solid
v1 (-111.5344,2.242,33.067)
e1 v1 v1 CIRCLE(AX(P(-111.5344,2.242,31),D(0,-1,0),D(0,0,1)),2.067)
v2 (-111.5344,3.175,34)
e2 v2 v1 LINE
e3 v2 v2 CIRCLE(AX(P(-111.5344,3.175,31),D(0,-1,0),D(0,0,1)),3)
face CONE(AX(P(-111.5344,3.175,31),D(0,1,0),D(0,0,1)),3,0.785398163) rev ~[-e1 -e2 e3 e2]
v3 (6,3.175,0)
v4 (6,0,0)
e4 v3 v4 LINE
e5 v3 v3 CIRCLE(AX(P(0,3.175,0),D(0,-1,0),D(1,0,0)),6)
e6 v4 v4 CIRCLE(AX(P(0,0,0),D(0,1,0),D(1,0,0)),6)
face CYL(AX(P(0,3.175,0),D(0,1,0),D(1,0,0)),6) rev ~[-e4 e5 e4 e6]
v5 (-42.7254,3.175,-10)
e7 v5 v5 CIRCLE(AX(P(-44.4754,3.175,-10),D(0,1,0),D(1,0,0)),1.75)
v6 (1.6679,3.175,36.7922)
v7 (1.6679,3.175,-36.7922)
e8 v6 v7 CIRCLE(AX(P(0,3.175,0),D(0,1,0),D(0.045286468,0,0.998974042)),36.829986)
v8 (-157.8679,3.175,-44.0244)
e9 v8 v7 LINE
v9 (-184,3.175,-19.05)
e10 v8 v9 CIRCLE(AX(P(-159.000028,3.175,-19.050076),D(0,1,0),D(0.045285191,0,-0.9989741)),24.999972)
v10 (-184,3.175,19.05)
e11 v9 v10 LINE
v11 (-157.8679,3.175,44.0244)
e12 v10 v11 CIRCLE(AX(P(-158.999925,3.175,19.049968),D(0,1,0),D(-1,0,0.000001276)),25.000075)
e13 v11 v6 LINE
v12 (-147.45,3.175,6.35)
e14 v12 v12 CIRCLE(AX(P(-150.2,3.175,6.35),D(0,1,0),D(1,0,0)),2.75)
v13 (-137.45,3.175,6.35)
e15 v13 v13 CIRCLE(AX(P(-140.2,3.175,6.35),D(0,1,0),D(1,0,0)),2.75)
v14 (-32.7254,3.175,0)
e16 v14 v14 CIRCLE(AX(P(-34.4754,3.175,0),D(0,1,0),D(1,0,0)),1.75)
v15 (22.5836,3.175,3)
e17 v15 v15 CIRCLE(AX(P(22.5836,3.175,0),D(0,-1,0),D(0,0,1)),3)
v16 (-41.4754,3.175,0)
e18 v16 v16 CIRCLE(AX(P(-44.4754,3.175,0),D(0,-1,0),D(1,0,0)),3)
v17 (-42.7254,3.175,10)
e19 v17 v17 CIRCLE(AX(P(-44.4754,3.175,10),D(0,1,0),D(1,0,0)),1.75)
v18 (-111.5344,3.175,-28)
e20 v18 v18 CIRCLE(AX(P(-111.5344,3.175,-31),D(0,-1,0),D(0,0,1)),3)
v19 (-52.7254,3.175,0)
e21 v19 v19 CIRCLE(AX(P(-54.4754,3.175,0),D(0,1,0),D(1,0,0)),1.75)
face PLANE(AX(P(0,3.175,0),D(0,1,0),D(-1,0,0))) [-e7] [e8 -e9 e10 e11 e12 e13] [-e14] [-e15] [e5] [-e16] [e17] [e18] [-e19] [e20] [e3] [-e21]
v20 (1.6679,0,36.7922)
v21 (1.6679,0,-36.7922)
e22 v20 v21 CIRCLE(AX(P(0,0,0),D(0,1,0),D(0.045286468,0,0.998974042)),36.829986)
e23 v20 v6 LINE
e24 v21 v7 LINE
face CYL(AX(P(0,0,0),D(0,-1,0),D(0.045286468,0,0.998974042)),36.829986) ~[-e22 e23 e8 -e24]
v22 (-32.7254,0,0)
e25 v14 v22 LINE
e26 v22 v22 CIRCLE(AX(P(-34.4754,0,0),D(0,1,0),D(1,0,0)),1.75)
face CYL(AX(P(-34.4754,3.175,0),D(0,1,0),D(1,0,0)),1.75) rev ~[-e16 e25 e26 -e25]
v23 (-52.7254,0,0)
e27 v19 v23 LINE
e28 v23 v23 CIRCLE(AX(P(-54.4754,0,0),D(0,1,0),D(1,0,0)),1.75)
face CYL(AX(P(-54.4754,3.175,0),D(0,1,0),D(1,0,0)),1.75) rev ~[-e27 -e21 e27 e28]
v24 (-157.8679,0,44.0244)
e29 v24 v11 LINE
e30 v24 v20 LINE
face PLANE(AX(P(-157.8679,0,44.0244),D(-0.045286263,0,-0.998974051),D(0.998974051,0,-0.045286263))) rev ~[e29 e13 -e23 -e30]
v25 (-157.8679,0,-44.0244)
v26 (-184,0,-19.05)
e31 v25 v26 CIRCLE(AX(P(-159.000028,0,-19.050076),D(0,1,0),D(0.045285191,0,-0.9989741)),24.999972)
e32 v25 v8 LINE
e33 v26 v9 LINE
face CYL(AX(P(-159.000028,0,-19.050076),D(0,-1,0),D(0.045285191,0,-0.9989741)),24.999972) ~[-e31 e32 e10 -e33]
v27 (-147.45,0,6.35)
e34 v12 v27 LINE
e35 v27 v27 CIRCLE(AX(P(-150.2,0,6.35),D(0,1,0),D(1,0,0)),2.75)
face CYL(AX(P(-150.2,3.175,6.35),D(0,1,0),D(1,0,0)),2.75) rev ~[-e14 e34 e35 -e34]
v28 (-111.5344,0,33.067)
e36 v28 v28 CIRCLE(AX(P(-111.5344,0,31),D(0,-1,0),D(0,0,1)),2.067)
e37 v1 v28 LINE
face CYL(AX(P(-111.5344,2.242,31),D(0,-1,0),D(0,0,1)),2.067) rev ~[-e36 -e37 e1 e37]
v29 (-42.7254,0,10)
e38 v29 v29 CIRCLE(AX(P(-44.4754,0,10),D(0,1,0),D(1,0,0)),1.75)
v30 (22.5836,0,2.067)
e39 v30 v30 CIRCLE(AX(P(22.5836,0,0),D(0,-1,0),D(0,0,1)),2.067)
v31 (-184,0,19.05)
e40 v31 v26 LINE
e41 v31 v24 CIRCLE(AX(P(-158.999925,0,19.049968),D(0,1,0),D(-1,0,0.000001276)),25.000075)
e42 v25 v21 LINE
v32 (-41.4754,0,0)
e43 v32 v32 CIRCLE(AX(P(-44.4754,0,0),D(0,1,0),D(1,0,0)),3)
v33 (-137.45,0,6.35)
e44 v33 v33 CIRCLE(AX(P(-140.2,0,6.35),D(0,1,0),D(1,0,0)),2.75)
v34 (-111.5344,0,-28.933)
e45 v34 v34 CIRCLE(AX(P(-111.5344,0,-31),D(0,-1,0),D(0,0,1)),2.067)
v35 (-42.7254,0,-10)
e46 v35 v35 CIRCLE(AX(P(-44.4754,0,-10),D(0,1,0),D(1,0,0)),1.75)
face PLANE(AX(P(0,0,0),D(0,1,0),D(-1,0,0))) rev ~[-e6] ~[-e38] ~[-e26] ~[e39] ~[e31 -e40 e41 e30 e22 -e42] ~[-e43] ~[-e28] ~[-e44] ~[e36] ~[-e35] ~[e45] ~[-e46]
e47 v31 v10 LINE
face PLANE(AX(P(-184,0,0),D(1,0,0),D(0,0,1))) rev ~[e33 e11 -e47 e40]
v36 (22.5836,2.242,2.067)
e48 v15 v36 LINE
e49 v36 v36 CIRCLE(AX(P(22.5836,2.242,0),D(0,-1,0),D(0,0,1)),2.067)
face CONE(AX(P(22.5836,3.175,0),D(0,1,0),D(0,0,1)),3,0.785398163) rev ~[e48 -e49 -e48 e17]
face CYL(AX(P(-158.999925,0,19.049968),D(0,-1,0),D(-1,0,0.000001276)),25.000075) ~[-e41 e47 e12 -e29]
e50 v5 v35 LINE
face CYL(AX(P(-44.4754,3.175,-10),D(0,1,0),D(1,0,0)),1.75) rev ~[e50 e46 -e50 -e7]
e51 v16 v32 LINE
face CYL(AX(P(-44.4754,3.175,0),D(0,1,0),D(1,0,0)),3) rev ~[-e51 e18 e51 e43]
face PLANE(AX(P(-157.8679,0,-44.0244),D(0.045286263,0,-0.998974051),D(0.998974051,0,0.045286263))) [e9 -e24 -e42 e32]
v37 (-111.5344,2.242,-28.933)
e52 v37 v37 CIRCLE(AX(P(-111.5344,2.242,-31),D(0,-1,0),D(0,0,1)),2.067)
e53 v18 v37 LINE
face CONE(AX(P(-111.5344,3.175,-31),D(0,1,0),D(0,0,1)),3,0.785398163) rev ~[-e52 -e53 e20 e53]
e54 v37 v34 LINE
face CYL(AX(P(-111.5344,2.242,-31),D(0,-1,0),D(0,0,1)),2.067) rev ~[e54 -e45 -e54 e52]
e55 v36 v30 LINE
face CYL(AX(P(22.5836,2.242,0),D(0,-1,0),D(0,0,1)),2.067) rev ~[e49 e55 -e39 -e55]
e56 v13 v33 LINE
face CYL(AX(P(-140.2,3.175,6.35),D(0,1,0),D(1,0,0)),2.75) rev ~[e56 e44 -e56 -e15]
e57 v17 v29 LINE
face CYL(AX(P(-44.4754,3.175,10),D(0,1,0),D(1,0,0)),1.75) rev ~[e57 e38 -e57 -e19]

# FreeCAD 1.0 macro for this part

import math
import FreeCAD as App
import Part
import Sketcher

V = App.Vector

doc = App.newDocument("Part")
body = doc.addObject("PartDesign::Body", "Body")

sketch1 = body.newObject("Sketcher::SketchObject", "Sketch")
sketch1.AttachmentSupport = (doc.getObject("XZ_Plane"), [""])
sketch1.MapMode = "FlatFace"
sketch1.addGeometry([
    Part.LineSegment(V(-158, 44, 0), V(2, 37, 0)),
    Part.ArcOfCircle(Part.Circle(V(0, 0, 0), V(0, 0, 1), 37), math.radians(-87), math.radians(87)),
    Part.LineSegment(V(2, -37, 0), V(-158, -44, 0)),
    Part.ArcOfCircle(Part.Circle(V(-159, -19, 0), V(0, 0, 1), 25), math.radians(180), math.radians(273)),
    Part.LineSegment(V(-184, -19, 0), V(-184, 19, 0)),
    Part.ArcOfCircle(Part.Circle(V(-159, 19, 0), V(0, 0, 1), 25), math.radians(87), math.radians(180)),
], False)
sketch1.addConstraint([
    Sketcher.Constraint("Tangent", 0, 2, 1, 2),
    Sketcher.Constraint("Tangent", 1, 1, 2, 1),
    Sketcher.Constraint("Tangent", 2, 2, 3, 2),
    Sketcher.Constraint("Tangent", 3, 1, 4, 1),
    Sketcher.Constraint("Tangent", 4, 2, 5, 2),
    Sketcher.Constraint("Tangent", 5, 1, 0, 1),
    Sketcher.Constraint("Vertical", 4),
    Sketcher.Constraint("Coincident", 1, 3, -1, 1),
    Sketcher.Constraint("Equal", 3, 5),
    Sketcher.Constraint("Vertical", 0, 2, 1, 1),
    Sketcher.Constraint("Radius", 3, 25.0),
    Sketcher.Constraint("Radius", 1, 36.83),
    Sketcher.Constraint("DistanceY", 4, 1, 4, 2, 38.1),
    Sketcher.Constraint("DistanceX", 3, 3, -1, 1, 159.0),
])
pad1 = body.newObject("PartDesign::Pad", "Pad")
pad1.Profile = sketch1
pad1.Length = 3.175
pad1.Reversed = True

sketch2 = body.newObject("Sketcher::SketchObject", "Sketch001")
sketch2.AttachmentSupport = (doc.getObject("XZ_Plane"), [""])
sketch2.MapMode = "FlatFace"
sketch2.AttachmentOffset = App.Placement(V(0, 0, -3.175), App.Rotation())
sketch2.addGeometry([
    Part.Circle(V(0, 0, 0), V(0, 0, 1), 6),
    Part.Circle(V(-44.5, 0, 0), V(0, 0, 1), 3),
], False)
sketch2.addConstraint([
    Sketcher.Constraint("Coincident", 0, 3, -1, 1),
    Sketcher.Constraint("PointOnObject", 1, 3, -1),
    Sketcher.Constraint("Diameter", 0, 12.0),
    Sketcher.Constraint("Diameter", 1, 6.0),
    Sketcher.Constraint("DistanceX", 1, 3, -1, 1, 44.4754),
])
pocket1 = body.newObject("PartDesign::Pocket", "Pocket")
pocket1.Profile = sketch2
pocket1.Type = "ThroughAll"
pocket1.Reversed = True

sketch3 = body.newObject("Sketcher::SketchObject", "Sketch002")
sketch3.AttachmentSupport = (doc.getObject("XZ_Plane"), [""])
sketch3.MapMode = "FlatFace"
sketch3.AttachmentOffset = App.Placement(V(0, 0, -3.175), App.Rotation())
sketch3.addGeometry([
    Part.Circle(V(-140.2, 6.3, 0), V(0, 0, 1), 2.8),
    Part.Circle(V(-150.2, 6.3, 0), V(0, 0, 1), 2.8),
], False)
sketch3.addConstraint([
    Sketcher.Constraint("Equal", 0, 1),
    Sketcher.Constraint("Horizontal", 0, 3, 1, 3),
    Sketcher.Constraint("Diameter", 0, 5.5),
    Sketcher.Constraint("DistanceX", 1, 3, 0, 3, 10.0),
    Sketcher.Constraint("DistanceX", 0, 3, -1, 1, 140.2),
    Sketcher.Constraint("DistanceY", -1, 1, 0, 3, 6.35),
])
pocket2 = body.newObject("PartDesign::Pocket", "Pocket001")
pocket2.Profile = sketch3
pocket2.Type = "ThroughAll"
pocket2.Reversed = True

sketch4 = body.newObject("Sketcher::SketchObject", "Sketch003")
sketch4.AttachmentSupport = (doc.getObject("XZ_Plane"), [""])
sketch4.MapMode = "FlatFace"
sketch4.AttachmentOffset = App.Placement(V(0, 0, -3.175), App.Rotation())
sketch4.addGeometry([
    Part.Circle(V(-44.5, -10, 0), V(0, 0, 1), 1.8),
    Part.Circle(V(-54.5, 0, 0), V(0, 0, 1), 1.8),
    Part.Circle(V(-44.5, 10, 0), V(0, 0, 1), 1.8),
    Part.Circle(V(-34.5, 0, 0), V(0, 0, 1), 1.8),
], False)
sketch4.addConstraint([
    Sketcher.Constraint("Equal", 0, 1),
    Sketcher.Constraint("Equal", 1, 2),
    Sketcher.Constraint("Equal", 2, 3),
    Sketcher.Constraint("Symmetric", 0, 3, 2, 3, -1),
    Sketcher.Constraint("PointOnObject", 1, 3, -1),
    Sketcher.Constraint("PointOnObject", 3, 3, -1),
    Sketcher.Constraint("Diameter", 0, 3.5),
    Sketcher.Constraint("DistanceY", 0, 3, 2, 3, 20.0),
    Sketcher.Constraint("DistanceX", 1, 3, 3, 3, 20.0),
    Sketcher.Constraint("DistanceX", 1, 3, 0, 3, 10.0),
    Sketcher.Constraint("DistanceX", 0, 3, -1, 1, 44.4754),
])
pocket3 = body.newObject("PartDesign::Pocket", "Pocket002")
pocket3.Profile = sketch4
pocket3.Length = 10
pocket3.Reversed = True

sketch5 = body.newObject("Sketcher::SketchObject", "Sketch004")
sketch5.AttachmentSupport = (doc.getObject("XZ_Plane"), [""])
sketch5.MapMode = "FlatFace"
sketch5.AttachmentOffset = App.Placement(V(0, 0, -3.175), App.Rotation())
sketch5.addGeometry([
    Part.Circle(V(-111.5, 31, 0), V(0, 0, 1), 2.1),
    Part.Circle(V(-111.5, -31, 0), V(0, 0, 1), 2.1),
    Part.Circle(V(22.6, 0, 0), V(0, 0, 1), 2.1),
], False)
sketch5.addConstraint([
    Sketcher.Constraint("Equal", 0, 1),
    Sketcher.Constraint("Equal", 1, 2),
    Sketcher.Constraint("Symmetric", 0, 3, 1, 3, -1),
    Sketcher.Constraint("PointOnObject", 2, 3, -1),
    Sketcher.Constraint("Diameter", 0, 4.134),
    Sketcher.Constraint("DistanceY", -1, 1, 0, 3, 31.0),
    Sketcher.Constraint("DistanceX", 0, 3, 2, 3, 134.118),
    Sketcher.Constraint("DistanceX", 0, 3, -1, 1, 111.5344),
])
doc.recompute()
hole = body.newObject("PartDesign::Hole", "Hole")
hole.Profile = sketch5
hole.ThreadType = "None"
hole.Diameter = 4.134
hole.DepthType = "ThroughAll"
hole.HoleCutType = "Countersink"
hole.HoleCutDiameter = 6
hole.HoleCutCountersinkAngle = 90
hole.Reversed = True

doc.recompute()
